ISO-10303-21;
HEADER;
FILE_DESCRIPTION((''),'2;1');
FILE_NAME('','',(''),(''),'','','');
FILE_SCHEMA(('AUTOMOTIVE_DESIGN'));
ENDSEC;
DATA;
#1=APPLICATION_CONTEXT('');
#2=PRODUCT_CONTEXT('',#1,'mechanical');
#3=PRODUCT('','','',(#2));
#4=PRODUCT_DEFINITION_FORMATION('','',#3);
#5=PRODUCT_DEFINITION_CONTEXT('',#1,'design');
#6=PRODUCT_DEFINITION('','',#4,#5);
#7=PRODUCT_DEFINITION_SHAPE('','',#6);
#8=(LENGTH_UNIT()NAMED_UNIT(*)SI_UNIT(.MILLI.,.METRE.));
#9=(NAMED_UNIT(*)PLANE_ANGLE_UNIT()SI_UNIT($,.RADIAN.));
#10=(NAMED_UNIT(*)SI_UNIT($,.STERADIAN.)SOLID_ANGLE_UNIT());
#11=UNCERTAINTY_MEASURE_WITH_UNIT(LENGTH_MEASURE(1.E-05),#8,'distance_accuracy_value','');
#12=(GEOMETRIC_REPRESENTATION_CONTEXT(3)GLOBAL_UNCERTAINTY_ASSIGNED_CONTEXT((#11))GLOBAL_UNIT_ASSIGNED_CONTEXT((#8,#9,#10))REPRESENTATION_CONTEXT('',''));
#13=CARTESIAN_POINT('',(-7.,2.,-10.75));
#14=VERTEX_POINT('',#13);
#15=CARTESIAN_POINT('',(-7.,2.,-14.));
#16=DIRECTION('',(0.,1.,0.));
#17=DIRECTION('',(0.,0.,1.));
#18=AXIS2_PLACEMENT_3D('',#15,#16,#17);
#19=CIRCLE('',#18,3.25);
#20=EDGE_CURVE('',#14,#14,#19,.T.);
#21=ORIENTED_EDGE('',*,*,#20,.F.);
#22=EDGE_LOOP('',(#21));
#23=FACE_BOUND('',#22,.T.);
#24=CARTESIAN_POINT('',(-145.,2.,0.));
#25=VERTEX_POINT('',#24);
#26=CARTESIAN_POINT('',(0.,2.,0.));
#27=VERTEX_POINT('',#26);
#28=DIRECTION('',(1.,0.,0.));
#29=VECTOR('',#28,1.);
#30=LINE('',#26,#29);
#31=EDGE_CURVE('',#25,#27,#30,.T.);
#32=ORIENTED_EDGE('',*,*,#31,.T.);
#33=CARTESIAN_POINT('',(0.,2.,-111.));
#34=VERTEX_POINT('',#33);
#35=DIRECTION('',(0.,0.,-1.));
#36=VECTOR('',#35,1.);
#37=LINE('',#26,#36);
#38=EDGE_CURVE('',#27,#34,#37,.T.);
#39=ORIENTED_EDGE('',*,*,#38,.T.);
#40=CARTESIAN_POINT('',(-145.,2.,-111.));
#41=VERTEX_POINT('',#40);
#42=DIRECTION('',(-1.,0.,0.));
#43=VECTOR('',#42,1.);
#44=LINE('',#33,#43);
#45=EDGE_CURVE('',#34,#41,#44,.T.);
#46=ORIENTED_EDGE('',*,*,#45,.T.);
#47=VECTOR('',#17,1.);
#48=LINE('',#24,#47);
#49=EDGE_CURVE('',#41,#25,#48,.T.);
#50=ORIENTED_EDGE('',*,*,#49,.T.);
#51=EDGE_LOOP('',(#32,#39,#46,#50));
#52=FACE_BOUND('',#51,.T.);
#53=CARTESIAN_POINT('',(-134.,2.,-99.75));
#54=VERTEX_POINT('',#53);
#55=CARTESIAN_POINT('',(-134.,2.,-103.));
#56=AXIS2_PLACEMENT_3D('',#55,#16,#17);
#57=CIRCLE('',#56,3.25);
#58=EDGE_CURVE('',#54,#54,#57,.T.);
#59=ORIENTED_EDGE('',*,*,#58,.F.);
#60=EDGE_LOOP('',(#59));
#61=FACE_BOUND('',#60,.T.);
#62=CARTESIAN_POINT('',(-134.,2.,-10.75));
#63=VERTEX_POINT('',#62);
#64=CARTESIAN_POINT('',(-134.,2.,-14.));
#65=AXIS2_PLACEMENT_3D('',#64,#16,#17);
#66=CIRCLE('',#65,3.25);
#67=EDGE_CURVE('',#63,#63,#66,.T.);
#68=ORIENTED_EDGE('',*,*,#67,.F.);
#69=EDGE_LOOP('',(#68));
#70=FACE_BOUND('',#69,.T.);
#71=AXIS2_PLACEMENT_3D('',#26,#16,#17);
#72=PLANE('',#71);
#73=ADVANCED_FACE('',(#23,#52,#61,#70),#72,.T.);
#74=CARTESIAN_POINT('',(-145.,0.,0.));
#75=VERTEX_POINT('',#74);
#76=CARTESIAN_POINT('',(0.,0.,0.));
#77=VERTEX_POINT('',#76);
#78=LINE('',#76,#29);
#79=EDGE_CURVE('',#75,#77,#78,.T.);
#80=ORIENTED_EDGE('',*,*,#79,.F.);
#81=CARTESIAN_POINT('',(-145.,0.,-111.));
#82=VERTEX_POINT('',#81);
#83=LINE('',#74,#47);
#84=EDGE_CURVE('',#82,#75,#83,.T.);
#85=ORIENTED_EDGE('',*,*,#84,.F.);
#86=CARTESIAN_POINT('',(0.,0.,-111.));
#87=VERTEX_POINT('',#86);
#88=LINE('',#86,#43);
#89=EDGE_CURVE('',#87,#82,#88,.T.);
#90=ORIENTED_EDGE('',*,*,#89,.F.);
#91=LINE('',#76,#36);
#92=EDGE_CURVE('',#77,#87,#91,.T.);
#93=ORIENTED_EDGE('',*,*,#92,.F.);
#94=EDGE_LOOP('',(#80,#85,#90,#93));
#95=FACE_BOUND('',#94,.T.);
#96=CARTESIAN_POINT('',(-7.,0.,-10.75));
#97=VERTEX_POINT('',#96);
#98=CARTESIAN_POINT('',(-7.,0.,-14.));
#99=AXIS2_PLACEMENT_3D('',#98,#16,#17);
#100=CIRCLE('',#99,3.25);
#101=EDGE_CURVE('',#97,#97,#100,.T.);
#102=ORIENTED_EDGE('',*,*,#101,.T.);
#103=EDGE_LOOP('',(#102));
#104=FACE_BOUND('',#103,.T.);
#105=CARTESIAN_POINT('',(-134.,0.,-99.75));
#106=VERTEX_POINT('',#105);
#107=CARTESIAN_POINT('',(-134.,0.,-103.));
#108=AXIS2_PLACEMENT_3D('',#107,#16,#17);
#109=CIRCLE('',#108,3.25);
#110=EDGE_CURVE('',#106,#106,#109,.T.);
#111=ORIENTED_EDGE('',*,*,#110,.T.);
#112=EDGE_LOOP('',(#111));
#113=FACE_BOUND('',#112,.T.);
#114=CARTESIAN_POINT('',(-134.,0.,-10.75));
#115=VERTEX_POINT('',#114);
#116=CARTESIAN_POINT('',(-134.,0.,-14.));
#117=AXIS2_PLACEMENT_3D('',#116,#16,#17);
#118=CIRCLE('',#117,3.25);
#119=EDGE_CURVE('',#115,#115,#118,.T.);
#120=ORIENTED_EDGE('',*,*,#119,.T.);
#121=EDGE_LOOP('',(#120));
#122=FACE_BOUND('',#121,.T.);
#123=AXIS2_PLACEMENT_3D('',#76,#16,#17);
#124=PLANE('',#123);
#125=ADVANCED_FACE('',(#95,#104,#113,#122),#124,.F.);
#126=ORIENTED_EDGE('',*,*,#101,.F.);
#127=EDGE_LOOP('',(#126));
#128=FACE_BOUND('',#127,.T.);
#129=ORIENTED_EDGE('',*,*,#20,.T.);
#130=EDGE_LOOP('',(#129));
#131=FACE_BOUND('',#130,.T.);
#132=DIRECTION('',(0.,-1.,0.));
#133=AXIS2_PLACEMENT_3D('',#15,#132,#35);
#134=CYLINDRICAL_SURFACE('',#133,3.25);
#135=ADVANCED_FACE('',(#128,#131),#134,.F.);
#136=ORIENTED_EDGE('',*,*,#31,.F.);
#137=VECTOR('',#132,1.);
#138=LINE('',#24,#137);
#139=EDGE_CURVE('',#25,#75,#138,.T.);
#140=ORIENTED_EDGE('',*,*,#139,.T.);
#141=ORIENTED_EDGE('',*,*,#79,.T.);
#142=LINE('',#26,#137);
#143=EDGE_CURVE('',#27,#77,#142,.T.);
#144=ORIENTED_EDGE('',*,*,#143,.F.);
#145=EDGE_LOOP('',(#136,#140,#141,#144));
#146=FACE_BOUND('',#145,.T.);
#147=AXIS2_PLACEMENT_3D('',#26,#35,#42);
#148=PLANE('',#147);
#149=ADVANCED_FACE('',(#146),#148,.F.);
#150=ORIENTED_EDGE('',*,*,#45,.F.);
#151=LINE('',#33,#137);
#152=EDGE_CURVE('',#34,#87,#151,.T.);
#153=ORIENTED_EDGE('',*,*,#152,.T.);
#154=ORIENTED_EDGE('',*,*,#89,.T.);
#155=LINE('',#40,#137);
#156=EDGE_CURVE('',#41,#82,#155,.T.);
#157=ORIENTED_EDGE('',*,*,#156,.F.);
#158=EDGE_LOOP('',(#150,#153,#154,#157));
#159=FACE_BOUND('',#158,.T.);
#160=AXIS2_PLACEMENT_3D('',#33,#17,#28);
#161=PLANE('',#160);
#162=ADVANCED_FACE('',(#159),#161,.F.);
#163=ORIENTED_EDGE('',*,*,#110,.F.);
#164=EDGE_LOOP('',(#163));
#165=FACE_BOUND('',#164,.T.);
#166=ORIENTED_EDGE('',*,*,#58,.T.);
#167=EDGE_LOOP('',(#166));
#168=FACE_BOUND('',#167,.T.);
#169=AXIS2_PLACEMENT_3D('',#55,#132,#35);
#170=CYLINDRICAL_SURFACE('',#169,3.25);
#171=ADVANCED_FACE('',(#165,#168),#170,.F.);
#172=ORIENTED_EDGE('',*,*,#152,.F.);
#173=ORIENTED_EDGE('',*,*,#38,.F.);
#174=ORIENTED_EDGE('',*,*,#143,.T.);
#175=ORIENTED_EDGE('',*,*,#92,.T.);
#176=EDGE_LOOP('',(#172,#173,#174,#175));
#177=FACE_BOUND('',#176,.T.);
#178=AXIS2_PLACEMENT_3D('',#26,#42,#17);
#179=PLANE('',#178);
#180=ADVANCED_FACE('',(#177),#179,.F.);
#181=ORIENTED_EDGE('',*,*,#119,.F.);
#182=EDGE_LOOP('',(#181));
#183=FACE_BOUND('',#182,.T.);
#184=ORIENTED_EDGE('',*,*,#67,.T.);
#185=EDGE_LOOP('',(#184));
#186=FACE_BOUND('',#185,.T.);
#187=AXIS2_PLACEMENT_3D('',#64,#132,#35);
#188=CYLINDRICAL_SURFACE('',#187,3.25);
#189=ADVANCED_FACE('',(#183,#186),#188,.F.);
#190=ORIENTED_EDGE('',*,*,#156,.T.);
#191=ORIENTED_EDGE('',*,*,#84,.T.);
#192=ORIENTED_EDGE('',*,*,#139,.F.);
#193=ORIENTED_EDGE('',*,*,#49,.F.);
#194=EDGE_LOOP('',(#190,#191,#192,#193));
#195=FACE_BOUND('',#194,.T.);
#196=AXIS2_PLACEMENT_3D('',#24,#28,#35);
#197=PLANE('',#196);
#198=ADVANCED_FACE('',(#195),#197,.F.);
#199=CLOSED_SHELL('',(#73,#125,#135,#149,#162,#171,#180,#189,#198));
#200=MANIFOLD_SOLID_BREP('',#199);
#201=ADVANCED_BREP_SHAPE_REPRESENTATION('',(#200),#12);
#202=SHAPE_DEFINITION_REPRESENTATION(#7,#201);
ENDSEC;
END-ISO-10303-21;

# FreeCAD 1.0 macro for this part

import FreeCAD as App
import Part
import Sketcher


def add_polygon(sketch, points):
    """Adds a closed chain of lines whose ends are joined by coincident constraints."""
    first, n = sketch.GeometryCount, len(points)
    for a, b in zip(points, points[1:] + points[:1]):
        sketch.addGeometry(Part.LineSegment(App.Vector(*a, 0), App.Vector(*b, 0)), False)
    for i in range(n):
        sketch.addConstraint(Sketcher.Constraint("Coincident", first + i, 2, first + (i + 1) % n, 1))

doc = App.newDocument("Part")
body = doc.addObject("PartDesign::Body", "Body")

sketch1 = body.newObject("Sketcher::SketchObject", "Sketch")
sketch1.AttachmentSupport = (doc.getObject("XZ_Plane"), [""])
sketch1.MapMode = "FlatFace"
add_polygon(sketch1, [(-145, -111), (-145, 0), (0, 0), (0, -111)])
sketch1.addGeometry(Part.Circle(App.Vector(-134, -14, 0), App.Vector(0, 0, 1), 3.2), False)
sketch1.addGeometry(Part.Circle(App.Vector(-7, -14, 0), App.Vector(0, 0, 1), 3.2), False)
sketch1.addGeometry(Part.Circle(App.Vector(-134, -103, 0), App.Vector(0, 0, 1), 3.2), False)
sketch1.addConstraint(Sketcher.Constraint("Vertical", 0))
sketch1.addConstraint(Sketcher.Constraint("Horizontal", 1))
sketch1.addConstraint(Sketcher.Constraint("Vertical", 2))
sketch1.addConstraint(Sketcher.Constraint("Horizontal", 3))
sketch1.addConstraint(Sketcher.Constraint("Coincident", 1, 2, -1, 1))
sketch1.addConstraint(Sketcher.Constraint("Equal", 4, 5))
sketch1.addConstraint(Sketcher.Constraint("Equal", 5, 6))
sketch1.addConstraint(Sketcher.Constraint("Horizontal", 4, 3, 5, 3))
sketch1.addConstraint(Sketcher.Constraint("Vertical", 4, 3, 6, 3))
sketch1.addConstraint(Sketcher.Constraint("Diameter", 4, 6.5))
sketch1.addConstraint(Sketcher.Constraint("DistanceX", 1, 1, 1, 2, 145.0))
sketch1.addConstraint(Sketcher.Constraint("DistanceY", 0, 1, 0, 2, 111.0))
sketch1.addConstraint(Sketcher.Constraint("DistanceX", 4, 3, -1, 1, 134.0))
sketch1.addConstraint(Sketcher.Constraint("DistanceY", 4, 3, -1, 1, 14.0))
sketch1.addConstraint(Sketcher.Constraint("DistanceX", 5, 3, -1, 1, 7.0))
sketch1.addConstraint(Sketcher.Constraint("DistanceY", 6, 3, -1, 1, 103.0))
pad1 = body.newObject("PartDesign::Pad", "Pad")
pad1.Profile = sketch1
pad1.Length = 2
pad1.Reversed = True

doc.recompute()
